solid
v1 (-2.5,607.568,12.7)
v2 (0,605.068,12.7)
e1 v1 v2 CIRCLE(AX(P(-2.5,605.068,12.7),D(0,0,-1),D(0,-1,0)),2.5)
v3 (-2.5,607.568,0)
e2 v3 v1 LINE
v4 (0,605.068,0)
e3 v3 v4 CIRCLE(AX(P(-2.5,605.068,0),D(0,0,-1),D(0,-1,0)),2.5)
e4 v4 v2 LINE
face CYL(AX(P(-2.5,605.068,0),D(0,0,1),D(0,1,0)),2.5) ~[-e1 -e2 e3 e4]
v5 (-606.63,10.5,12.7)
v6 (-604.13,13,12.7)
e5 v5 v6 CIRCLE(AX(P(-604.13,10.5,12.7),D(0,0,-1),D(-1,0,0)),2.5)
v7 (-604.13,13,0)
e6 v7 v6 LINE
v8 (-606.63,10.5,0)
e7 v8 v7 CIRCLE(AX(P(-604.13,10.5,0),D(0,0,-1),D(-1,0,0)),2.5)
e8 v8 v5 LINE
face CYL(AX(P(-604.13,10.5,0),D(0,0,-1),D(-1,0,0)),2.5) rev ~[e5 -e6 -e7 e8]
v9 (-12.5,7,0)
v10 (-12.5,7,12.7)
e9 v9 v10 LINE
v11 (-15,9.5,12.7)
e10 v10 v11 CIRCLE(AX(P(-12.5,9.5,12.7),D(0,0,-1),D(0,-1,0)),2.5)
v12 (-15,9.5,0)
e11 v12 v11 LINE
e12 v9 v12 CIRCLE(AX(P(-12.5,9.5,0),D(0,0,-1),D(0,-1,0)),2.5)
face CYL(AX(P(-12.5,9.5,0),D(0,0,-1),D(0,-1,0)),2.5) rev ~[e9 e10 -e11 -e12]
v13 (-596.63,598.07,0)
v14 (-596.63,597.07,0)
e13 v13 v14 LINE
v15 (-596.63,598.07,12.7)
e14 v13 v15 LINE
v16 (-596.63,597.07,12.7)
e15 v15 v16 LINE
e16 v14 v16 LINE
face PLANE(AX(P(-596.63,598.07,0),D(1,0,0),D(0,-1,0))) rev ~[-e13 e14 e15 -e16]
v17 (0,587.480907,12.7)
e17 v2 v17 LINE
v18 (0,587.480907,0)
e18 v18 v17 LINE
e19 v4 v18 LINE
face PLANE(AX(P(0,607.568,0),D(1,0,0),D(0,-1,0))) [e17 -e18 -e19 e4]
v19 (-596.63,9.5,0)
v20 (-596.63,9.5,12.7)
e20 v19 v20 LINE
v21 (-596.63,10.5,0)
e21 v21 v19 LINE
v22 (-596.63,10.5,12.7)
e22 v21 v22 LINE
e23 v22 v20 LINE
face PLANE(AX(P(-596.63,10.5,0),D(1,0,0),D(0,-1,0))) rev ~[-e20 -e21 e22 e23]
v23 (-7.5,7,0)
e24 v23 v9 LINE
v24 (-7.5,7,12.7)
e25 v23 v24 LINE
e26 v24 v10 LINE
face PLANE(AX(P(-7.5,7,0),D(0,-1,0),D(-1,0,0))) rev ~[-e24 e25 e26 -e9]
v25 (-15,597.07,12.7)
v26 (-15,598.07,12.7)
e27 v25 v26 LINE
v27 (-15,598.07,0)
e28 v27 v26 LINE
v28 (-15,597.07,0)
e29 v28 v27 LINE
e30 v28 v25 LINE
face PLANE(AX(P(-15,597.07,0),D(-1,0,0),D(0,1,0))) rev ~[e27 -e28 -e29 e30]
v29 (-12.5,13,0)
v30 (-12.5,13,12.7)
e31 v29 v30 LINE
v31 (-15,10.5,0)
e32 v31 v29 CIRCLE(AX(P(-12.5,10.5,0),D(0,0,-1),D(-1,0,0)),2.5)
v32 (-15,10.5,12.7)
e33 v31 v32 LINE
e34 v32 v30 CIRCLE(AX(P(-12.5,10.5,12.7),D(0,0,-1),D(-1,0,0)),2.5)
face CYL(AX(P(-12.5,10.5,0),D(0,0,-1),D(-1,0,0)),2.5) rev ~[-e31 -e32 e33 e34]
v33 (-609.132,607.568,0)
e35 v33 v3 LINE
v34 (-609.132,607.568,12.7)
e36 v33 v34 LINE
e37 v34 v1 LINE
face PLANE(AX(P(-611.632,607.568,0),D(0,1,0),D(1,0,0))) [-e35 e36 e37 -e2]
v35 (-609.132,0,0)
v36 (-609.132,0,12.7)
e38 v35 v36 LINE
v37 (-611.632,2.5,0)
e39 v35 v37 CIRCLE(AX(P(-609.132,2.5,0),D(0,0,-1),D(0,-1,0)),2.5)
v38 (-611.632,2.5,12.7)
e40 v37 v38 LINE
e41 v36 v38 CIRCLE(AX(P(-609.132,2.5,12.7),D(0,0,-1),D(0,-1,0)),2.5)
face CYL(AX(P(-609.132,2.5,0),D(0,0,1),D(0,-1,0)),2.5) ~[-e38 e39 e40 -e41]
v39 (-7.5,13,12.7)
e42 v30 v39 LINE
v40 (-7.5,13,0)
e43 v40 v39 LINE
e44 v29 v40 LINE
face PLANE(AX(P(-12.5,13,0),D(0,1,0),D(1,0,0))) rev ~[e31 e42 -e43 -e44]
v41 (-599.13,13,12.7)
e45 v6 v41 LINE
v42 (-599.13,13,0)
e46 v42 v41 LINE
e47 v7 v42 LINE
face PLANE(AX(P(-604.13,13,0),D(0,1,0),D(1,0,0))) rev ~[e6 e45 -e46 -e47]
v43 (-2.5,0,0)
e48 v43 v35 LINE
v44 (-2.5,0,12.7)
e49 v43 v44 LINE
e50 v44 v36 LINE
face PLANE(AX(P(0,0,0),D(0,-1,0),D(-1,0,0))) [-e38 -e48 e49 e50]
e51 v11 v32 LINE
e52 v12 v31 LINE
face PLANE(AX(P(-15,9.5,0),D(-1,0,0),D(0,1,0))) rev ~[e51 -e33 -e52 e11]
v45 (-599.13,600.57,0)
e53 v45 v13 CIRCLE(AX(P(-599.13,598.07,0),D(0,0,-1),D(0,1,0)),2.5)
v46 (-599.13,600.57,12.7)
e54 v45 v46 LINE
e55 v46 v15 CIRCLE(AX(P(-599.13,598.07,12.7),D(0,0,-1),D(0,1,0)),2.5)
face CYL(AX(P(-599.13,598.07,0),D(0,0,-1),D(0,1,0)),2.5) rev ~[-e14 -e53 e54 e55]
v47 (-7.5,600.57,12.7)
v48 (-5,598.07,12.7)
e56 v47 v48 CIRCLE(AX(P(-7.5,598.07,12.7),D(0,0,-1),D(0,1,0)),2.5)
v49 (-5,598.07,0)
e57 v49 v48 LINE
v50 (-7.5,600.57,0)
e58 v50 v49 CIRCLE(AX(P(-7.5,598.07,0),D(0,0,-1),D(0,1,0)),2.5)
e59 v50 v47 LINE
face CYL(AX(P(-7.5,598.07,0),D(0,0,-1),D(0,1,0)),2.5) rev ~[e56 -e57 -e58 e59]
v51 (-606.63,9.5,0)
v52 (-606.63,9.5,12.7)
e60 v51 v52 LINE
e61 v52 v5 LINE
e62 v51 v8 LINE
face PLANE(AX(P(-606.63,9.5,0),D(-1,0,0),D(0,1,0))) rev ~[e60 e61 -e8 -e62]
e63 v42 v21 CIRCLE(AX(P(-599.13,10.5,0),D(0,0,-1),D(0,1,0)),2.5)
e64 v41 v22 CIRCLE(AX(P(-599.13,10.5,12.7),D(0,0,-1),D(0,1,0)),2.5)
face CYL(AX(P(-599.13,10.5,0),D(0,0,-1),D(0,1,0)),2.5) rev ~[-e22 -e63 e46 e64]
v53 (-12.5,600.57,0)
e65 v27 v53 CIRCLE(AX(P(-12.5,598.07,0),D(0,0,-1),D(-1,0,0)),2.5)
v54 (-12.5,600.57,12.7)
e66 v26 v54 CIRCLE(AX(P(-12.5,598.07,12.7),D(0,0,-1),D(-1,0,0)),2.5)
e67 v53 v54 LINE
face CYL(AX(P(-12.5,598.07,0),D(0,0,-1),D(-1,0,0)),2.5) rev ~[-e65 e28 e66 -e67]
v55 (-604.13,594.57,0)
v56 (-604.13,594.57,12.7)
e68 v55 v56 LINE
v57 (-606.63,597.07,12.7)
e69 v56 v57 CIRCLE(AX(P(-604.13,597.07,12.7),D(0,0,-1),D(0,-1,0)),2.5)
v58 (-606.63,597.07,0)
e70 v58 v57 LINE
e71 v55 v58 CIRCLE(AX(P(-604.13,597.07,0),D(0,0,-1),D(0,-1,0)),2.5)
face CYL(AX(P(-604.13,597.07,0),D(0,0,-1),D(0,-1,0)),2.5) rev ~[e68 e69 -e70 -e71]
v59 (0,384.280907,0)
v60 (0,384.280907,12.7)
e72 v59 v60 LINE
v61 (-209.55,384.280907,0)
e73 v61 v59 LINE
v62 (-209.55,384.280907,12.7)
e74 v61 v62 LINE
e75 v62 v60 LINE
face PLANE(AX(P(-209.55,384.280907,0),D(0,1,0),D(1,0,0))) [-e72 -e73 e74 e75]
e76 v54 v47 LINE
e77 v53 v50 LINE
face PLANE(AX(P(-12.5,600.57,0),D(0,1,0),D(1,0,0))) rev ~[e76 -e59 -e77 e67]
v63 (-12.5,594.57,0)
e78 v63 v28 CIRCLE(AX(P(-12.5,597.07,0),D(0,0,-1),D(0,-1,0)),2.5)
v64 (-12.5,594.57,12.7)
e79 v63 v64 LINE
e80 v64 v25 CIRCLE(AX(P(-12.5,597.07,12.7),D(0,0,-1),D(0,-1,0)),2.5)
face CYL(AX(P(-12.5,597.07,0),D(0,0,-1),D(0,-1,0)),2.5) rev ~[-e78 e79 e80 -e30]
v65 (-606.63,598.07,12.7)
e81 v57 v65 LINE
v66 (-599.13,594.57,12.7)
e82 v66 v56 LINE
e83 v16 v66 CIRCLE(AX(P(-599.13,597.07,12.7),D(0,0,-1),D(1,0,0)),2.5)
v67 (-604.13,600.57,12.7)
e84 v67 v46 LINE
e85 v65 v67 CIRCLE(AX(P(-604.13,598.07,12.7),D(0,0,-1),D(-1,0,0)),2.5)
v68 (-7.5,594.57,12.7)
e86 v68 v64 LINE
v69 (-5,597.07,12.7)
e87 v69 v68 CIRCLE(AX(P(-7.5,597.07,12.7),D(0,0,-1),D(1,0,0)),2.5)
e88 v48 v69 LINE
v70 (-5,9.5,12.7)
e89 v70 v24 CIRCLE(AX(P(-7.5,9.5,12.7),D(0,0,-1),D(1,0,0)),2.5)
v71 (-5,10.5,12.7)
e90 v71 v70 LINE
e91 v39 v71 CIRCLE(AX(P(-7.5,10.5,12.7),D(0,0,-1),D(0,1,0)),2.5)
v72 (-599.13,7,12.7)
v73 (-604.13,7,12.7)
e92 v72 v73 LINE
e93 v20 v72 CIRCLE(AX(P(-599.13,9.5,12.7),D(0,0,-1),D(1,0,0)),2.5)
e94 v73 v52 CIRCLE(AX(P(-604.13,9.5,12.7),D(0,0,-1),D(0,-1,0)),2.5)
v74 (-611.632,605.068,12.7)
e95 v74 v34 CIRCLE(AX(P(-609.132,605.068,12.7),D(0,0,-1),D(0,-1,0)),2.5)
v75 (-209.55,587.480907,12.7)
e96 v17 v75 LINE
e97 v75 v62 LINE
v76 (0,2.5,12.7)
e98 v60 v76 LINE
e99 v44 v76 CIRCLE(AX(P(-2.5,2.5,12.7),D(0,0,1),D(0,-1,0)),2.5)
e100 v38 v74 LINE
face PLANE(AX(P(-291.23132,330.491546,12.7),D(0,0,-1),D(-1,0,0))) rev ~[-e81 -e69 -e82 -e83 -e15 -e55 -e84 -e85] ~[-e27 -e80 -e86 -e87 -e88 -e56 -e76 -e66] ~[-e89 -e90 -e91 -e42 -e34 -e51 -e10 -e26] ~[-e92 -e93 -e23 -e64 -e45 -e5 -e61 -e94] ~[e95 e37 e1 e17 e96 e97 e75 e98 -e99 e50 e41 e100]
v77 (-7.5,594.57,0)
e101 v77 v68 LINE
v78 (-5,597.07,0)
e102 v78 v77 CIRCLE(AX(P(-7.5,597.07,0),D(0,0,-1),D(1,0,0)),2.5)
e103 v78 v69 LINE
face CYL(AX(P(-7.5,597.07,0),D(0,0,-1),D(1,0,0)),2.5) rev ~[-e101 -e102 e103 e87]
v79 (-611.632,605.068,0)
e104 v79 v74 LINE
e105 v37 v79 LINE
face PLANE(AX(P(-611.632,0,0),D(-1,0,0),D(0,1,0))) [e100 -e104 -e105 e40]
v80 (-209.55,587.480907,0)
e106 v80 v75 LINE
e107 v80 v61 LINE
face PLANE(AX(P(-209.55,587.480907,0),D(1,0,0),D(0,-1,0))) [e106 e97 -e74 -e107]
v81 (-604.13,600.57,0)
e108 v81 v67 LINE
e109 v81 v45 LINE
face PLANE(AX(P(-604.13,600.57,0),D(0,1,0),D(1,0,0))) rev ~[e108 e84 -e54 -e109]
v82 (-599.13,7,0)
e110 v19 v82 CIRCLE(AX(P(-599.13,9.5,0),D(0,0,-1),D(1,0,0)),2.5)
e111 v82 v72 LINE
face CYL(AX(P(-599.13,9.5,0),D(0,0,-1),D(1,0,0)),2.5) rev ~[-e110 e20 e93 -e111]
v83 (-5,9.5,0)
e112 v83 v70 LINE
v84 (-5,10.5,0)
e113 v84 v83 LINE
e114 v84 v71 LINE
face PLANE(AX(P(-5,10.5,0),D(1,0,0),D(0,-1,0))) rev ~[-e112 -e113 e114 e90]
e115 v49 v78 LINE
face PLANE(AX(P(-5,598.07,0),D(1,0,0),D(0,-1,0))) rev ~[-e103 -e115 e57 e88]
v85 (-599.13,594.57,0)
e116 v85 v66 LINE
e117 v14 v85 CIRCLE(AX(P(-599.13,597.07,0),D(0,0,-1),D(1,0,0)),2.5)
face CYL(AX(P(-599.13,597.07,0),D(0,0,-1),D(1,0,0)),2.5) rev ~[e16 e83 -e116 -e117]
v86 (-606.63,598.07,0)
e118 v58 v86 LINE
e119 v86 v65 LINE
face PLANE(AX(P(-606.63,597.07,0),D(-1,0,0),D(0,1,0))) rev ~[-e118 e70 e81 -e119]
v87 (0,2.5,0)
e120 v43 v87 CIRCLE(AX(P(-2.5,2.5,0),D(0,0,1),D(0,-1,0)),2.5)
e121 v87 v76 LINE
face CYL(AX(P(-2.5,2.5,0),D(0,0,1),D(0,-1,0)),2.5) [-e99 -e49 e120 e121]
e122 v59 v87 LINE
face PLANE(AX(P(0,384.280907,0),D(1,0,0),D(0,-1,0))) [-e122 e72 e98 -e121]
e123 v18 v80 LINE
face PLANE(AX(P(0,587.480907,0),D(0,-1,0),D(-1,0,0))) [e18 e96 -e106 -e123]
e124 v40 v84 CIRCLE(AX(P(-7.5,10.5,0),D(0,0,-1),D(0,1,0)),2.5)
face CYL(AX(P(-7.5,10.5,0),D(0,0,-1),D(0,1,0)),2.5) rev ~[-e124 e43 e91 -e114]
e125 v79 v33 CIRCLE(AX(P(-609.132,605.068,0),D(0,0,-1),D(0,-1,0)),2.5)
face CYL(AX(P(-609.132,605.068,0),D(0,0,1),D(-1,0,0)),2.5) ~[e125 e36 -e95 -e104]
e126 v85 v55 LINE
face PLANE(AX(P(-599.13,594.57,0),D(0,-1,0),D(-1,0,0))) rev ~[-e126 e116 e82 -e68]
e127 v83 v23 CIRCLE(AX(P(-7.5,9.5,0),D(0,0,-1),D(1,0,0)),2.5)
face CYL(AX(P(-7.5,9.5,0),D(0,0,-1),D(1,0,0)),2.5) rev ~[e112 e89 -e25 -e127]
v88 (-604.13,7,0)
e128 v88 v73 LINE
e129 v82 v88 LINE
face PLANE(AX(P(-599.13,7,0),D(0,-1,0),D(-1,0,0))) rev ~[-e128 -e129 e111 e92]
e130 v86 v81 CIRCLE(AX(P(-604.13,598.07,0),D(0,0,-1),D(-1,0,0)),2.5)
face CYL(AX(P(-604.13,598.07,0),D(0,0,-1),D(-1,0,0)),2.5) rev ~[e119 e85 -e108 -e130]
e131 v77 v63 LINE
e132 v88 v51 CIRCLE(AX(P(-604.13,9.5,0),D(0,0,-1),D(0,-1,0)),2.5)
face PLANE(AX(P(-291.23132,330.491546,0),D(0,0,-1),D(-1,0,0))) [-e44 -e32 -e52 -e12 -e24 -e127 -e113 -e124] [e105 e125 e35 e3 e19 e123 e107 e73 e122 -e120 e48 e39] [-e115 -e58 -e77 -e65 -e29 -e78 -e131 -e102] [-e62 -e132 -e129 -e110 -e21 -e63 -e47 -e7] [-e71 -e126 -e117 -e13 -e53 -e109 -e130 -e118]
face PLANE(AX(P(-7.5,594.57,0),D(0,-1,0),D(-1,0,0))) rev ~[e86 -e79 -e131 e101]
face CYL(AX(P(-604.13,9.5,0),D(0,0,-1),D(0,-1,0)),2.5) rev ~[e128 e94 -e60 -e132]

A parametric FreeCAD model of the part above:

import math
import FreeCAD as App
import Part
import Sketcher

V = App.Vector
Q = App.Units.Quantity


def edges_at(feature, points):
    """Names of the edges that pass closest to the given points."""
    edges = feature.Shape.Edges
    near = lambda p: min(range(len(edges)), key=lambda i: edges[i].distToShape(Part.Vertex(*p))[0])
    return sorted({f"Edge{near(p) + 1}" for p in points})


def add_polygon(sketch, points):
    """Adds a closed chain of lines whose ends are joined by coincident constraints."""
    first, n = sketch.GeometryCount, len(points)
    for a, b in zip(points, points[1:] + points[:1]):
        sketch.addGeometry(Part.LineSegment(App.Vector(*a, 0), App.Vector(*b, 0)), False)
    for i in range(n):
        sketch.addConstraint(Sketcher.Constraint("Coincident", first + i, 2, first + (i + 1) % n, 1))

doc = App.newDocument("Part")
params = doc.addObject("Spreadsheet::Sheet", "Params")
for row, (alias, value) in enumerate([
    ("sketch1_height", "8 in"),
    ("sketch1_width", "24.08 in"),
    ("sketch1_width2", "8.25 in"),
    ("sketch1_height2", "23.92 in"),
    ("pad1_length", "0.5 in"),
    ("fillet_radius", "2.5 mm"),
], start=1):
    params.set(f"A{row}", alias)
    params.set(f"B{row}", "=" + value)
    params.setAlias(f"B{row}", alias)

body = doc.addObject("PartDesign::Body", "Body")

# Sketch on XY plane
sketch1 = doc.addObject("Sketcher::SketchObject", "Sketch")
body.addObject(sketch1)
sketch1.AttachmentSupport = (doc.XY_Plane, [""])
sketch1.MapMode = "FlatFace"
add_polygon(sketch1, [(-611.6, 0), (0, 0), (0, 384.3), (-209.6, 384.3), (-209.6, 587.5), (0, 587.5), (0, 607.6), (-611.6, 607.6)])  # lines 0-7
sketch1.addGeometry(Part.LineSegment(V(-5, 10.5, 0), V(-5, 9.5, 0)), False)  # 8
sketch1.addGeometry(Part.ArcOfCircle(Part.Circle(V(-7.5, 9.5, 0), V(0, 0, 1), 2.5), math.radians(-90), math.radians(0)), False)  # 9
sketch1.addGeometry(Part.LineSegment(V(-7.5, 7, 0), V(-12.5, 7, 0)), False)  # 10
sketch1.addGeometry(Part.ArcOfCircle(Part.Circle(V(-12.5, 9.5, 0), V(0, 0, 1), 2.5), math.radians(180), math.radians(270)), False)  # 11
sketch1.addGeometry(Part.LineSegment(V(-15, 9.5, 0), V(-15, 10.5, 0)), False)  # 12
sketch1.addGeometry(Part.ArcOfCircle(Part.Circle(V(-12.5, 10.5, 0), V(0, 0, 1), 2.5), math.radians(90), math.radians(180)), False)  # 13
sketch1.addGeometry(Part.LineSegment(V(-12.5, 13, 0), V(-7.5, 13, 0)), False)  # 14
sketch1.addGeometry(Part.ArcOfCircle(Part.Circle(V(-7.5, 10.5, 0), V(0, 0, 1), 2.5), math.radians(0), math.radians(90)), False)  # 15
sketch1.addGeometry(Part.LineSegment(V(-596.6, 10.5, 0), V(-596.6, 9.5, 0)), False)  # 16
sketch1.addGeometry(Part.ArcOfCircle(Part.Circle(V(-599.1, 9.5, 0), V(0, 0, 1), 2.5), math.radians(-90), math.radians(0)), False)  # 17
sketch1.addGeometry(Part.LineSegment(V(-599.1, 7, 0), V(-604.1, 7, 0)), False)  # 18
sketch1.addGeometry(Part.ArcOfCircle(Part.Circle(V(-604.1, 9.5, 0), V(0, 0, 1), 2.5), math.radians(180), math.radians(270)), False)  # 19
sketch1.addGeometry(Part.LineSegment(V(-606.6, 9.5, 0), V(-606.6, 10.5, 0)), False)  # 20
sketch1.addGeometry(Part.ArcOfCircle(Part.Circle(V(-604.1, 10.5, 0), V(0, 0, 1), 2.5), math.radians(90), math.radians(180)), False)  # 21
sketch1.addGeometry(Part.LineSegment(V(-604.1, 13, 0), V(-599.1, 13, 0)), False)  # 22
sketch1.addGeometry(Part.ArcOfCircle(Part.Circle(V(-599.1, 10.5, 0), V(0, 0, 1), 2.5), math.radians(0), math.radians(90)), False)  # 23
sketch1.addGeometry(Part.LineSegment(V(-5, 598.1, 0), V(-5, 597.1, 0)), False)  # 24
sketch1.addGeometry(Part.ArcOfCircle(Part.Circle(V(-7.5, 597.1, 0), V(0, 0, 1), 2.5), math.radians(-90), math.radians(0)), False)  # 25
sketch1.addGeometry(Part.LineSegment(V(-7.5, 594.6, 0), V(-12.5, 594.6, 0)), False)  # 26
sketch1.addGeometry(Part.ArcOfCircle(Part.Circle(V(-12.5, 597.1, 0), V(0, 0, 1), 2.5), math.radians(180), math.radians(270)), False)  # 27
sketch1.addGeometry(Part.LineSegment(V(-15, 597.1, 0), V(-15, 598.1, 0)), False)  # 28
sketch1.addGeometry(Part.ArcOfCircle(Part.Circle(V(-12.5, 598.1, 0), V(0, 0, 1), 2.5), math.radians(90), math.radians(180)), False)  # 29
sketch1.addGeometry(Part.LineSegment(V(-12.5, 600.6, 0), V(-7.5, 600.6, 0)), False)  # 30
sketch1.addGeometry(Part.ArcOfCircle(Part.Circle(V(-7.5, 598.1, 0), V(0, 0, 1), 2.5), math.radians(0), math.radians(90)), False)  # 31
sketch1.addGeometry(Part.LineSegment(V(-596.6, 598.1, 0), V(-596.6, 597.1, 0)), False)  # 32
sketch1.addGeometry(Part.ArcOfCircle(Part.Circle(V(-599.1, 597.1, 0), V(0, 0, 1), 2.5), math.radians(-90), math.radians(0)), False)  # 33
sketch1.addGeometry(Part.LineSegment(V(-599.1, 594.6, 0), V(-604.1, 594.6, 0)), False)  # 34
sketch1.addGeometry(Part.ArcOfCircle(Part.Circle(V(-604.1, 597.1, 0), V(0, 0, 1), 2.5), math.radians(180), math.radians(270)), False)  # 35
sketch1.addGeometry(Part.LineSegment(V(-606.6, 597.1, 0), V(-606.6, 598.1, 0)), False)  # 36
sketch1.addGeometry(Part.ArcOfCircle(Part.Circle(V(-604.1, 598.1, 0), V(0, 0, 1), 2.5), math.radians(90), math.radians(180)), False)  # 37
sketch1.addGeometry(Part.LineSegment(V(-604.1, 600.6, 0), V(-599.1, 600.6, 0)), False)  # 38
sketch1.addGeometry(Part.ArcOfCircle(Part.Circle(V(-599.1, 598.1, 0), V(0, 0, 1), 2.5), math.radians(0), math.radians(90)), False)  # 39
sketch1.addConstraint(Sketcher.Constraint("Tangent", 8, 2, 9, 2))
sketch1.addConstraint(Sketcher.Constraint("Tangent", 9, 1, 10, 1))
sketch1.addConstraint(Sketcher.Constraint("Tangent", 10, 2, 11, 2))
sketch1.addConstraint(Sketcher.Constraint("Tangent", 11, 1, 12, 1))
sketch1.addConstraint(Sketcher.Constraint("Tangent", 12, 2, 13, 2))
sketch1.addConstraint(Sketcher.Constraint("Tangent", 13, 1, 14, 1))
sketch1.addConstraint(Sketcher.Constraint("Tangent", 14, 2, 15, 2))
sketch1.addConstraint(Sketcher.Constraint("Tangent", 15, 1, 8, 1))
sketch1.addConstraint(Sketcher.Constraint("Tangent", 16, 2, 17, 2))
sketch1.addConstraint(Sketcher.Constraint("Tangent", 17, 1, 18, 1))
sketch1.addConstraint(Sketcher.Constraint("Tangent", 18, 2, 19, 2))
sketch1.addConstraint(Sketcher.Constraint("Tangent", 19, 1, 20, 1))
sketch1.addConstraint(Sketcher.Constraint("Tangent", 20, 2, 21, 2))
sketch1.addConstraint(Sketcher.Constraint("Tangent", 21, 1, 22, 1))
sketch1.addConstraint(Sketcher.Constraint("Tangent", 22, 2, 23, 2))
sketch1.addConstraint(Sketcher.Constraint("Tangent", 23, 1, 16, 1))
sketch1.addConstraint(Sketcher.Constraint("Tangent", 24, 2, 25, 2))
sketch1.addConstraint(Sketcher.Constraint("Tangent", 25, 1, 26, 1))
sketch1.addConstraint(Sketcher.Constraint("Tangent", 26, 2, 27, 2))
sketch1.addConstraint(Sketcher.Constraint("Tangent", 27, 1, 28, 1))
sketch1.addConstraint(Sketcher.Constraint("Tangent", 28, 2, 29, 2))
sketch1.addConstraint(Sketcher.Constraint("Tangent", 29, 1, 30, 1))
sketch1.addConstraint(Sketcher.Constraint("Tangent", 30, 2, 31, 2))
sketch1.addConstraint(Sketcher.Constraint("Tangent", 31, 1, 24, 1))
sketch1.addConstraint(Sketcher.Constraint("Tangent", 32, 2, 33, 2))
sketch1.addConstraint(Sketcher.Constraint("Tangent", 33, 1, 34, 1))
sketch1.addConstraint(Sketcher.Constraint("Tangent", 34, 2, 35, 2))
sketch1.addConstraint(Sketcher.Constraint("Tangent", 35, 1, 36, 1))
sketch1.addConstraint(Sketcher.Constraint("Tangent", 36, 2, 37, 2))
sketch1.addConstraint(Sketcher.Constraint("Tangent", 37, 1, 38, 1))
sketch1.addConstraint(Sketcher.Constraint("Tangent", 38, 2, 39, 2))
sketch1.addConstraint(Sketcher.Constraint("Tangent", 39, 1, 32, 1))
sketch1.addConstraint(Sketcher.Constraint("Horizontal", 0))
sketch1.addConstraint(Sketcher.Constraint("Vertical", 1))
sketch1.addConstraint(Sketcher.Constraint("Horizontal", 2))
sketch1.addConstraint(Sketcher.Constraint("Vertical", 3))
sketch1.addConstraint(Sketcher.Constraint("Horizontal", 4))
sketch1.addConstraint(Sketcher.Constraint("Vertical", 5))
sketch1.addConstraint(Sketcher.Constraint("Horizontal", 6))
sketch1.addConstraint(Sketcher.Constraint("Vertical", 7))
sketch1.addConstraint(Sketcher.Constraint("Vertical", 8))
sketch1.addConstraint(Sketcher.Constraint("Horizontal", 10))
sketch1.addConstraint(Sketcher.Constraint("Vertical", 12))
sketch1.addConstraint(Sketcher.Constraint("Horizontal", 14))
sketch1.addConstraint(Sketcher.Constraint("Vertical", 16))
sketch1.addConstraint(Sketcher.Constraint("Horizontal", 18))
sketch1.addConstraint(Sketcher.Constraint("Vertical", 20))
sketch1.addConstraint(Sketcher.Constraint("Horizontal", 22))
sketch1.addConstraint(Sketcher.Constraint("Vertical", 24))
sketch1.addConstraint(Sketcher.Constraint("Horizontal", 26))
sketch1.addConstraint(Sketcher.Constraint("Vertical", 28))
sketch1.addConstraint(Sketcher.Constraint("Horizontal", 30))
sketch1.addConstraint(Sketcher.Constraint("Vertical", 32))
sketch1.addConstraint(Sketcher.Constraint("Horizontal", 34))
sketch1.addConstraint(Sketcher.Constraint("Vertical", 36))
sketch1.addConstraint(Sketcher.Constraint("Horizontal", 38))
sketch1.addConstraint(Sketcher.Constraint("Coincident", 0, 2, -1, 1))
sketch1.addConstraint(Sketcher.Constraint("Equal", 9, 11))
sketch1.addConstraint(Sketcher.Constraint("Equal", 11, 13))
sketch1.addConstraint(Sketcher.Constraint("Equal", 13, 15))
sketch1.addConstraint(Sketcher.Constraint("Equal", 15, 17))
sketch1.addConstraint(Sketcher.Constraint("Equal", 17, 19))
sketch1.addConstraint(Sketcher.Constraint("Equal", 19, 21))
sketch1.addConstraint(Sketcher.Constraint("Equal", 21, 23))
sketch1.addConstraint(Sketcher.Constraint("Equal", 23, 25))
sketch1.addConstraint(Sketcher.Constraint("Equal", 25, 27))
sketch1.addConstraint(Sketcher.Constraint("Equal", 27, 29))
sketch1.addConstraint(Sketcher.Constraint("Equal", 29, 31))
sketch1.addConstraint(Sketcher.Constraint("Equal", 31, 33))
sketch1.addConstraint(Sketcher.Constraint("Equal", 33, 35))
sketch1.addConstraint(Sketcher.Constraint("Equal", 35, 37))
sketch1.addConstraint(Sketcher.Constraint("Equal", 37, 39))
sketch1.addConstraint(Sketcher.Constraint("PointOnObject", 4, 2, -2))
sketch1.addConstraint(Sketcher.Constraint("Horizontal", 11, 3, 17, 3))
sketch1.addConstraint(Sketcher.Constraint("Horizontal", 15, 3, 21, 3))
sketch1.addConstraint(Sketcher.Constraint("Horizontal", 27, 3, 33, 3))
sketch1.addConstraint(Sketcher.Constraint("Horizontal", 31, 3, 37, 3))
sketch1.addConstraint(Sketcher.Constraint("Vertical", 15, 3, 25, 3))
sketch1.addConstraint(Sketcher.Constraint("Vertical", 13, 3, 27, 3))
sketch1.addConstraint(Sketcher.Constraint("Vertical", 23, 3, 33, 3))
sketch1.addConstraint(Sketcher.Constraint("Vertical", 21, 3, 35, 3))
sketch1.addConstraint(Sketcher.Constraint("Equal", 14, 18))
sketch1.addConstraint(Sketcher.Constraint("Equal", 20, 24))
sketch1.addConstraint(Sketcher.Constraint("DistanceY", 3, 1, 3, 2, Q("8 in")))
sketch1.addConstraint(Sketcher.Constraint("DistanceX", 0, 1, 0, 2, Q("24.08 in")))
sketch1.addConstraint(Sketcher.Constraint("DistanceX", 2, 2, 2, 1, Q("8.25 in")))
sketch1.addConstraint(Sketcher.Constraint("DistanceY", 7, 2, 7, 1, Q("23.92 in")))
sketch1.addConstraint(Sketcher.Constraint("Radius", 9, 2.5))
sketch1.addConstraint(Sketcher.Constraint("DistanceX", 10, 2, 10, 1, 5.0))
sketch1.addConstraint(Sketcher.Constraint("DistanceY", 8, 2, 8, 1, 1.0))
sketch1.addConstraint(Sketcher.Constraint("DistanceX", 9, 3, -1, 1, 7.5))
sketch1.addConstraint(Sketcher.Constraint("DistanceY", -1, 1, 9, 3, 9.5))
sketch1.addConstraint(Sketcher.Constraint("DistanceX", 17, 3, -1, 1, 599.13))
sketch1.addConstraint(Sketcher.Constraint("DistanceY", -1, 1, 25, 3, 597.07))
sketch1.addConstraint(Sketcher.Constraint("DistanceY", 1, 1, 1, 2, 384.280907))
sketch1.setExpression("Constraints[91]", "Params.sketch1_height")
sketch1.setExpression("Constraints[92]", "Params.sketch1_width")
sketch1.setExpression("Constraints[93]", "Params.sketch1_width2")
sketch1.setExpression("Constraints[94]", "Params.sketch1_height2")
pad1 = doc.addObject("PartDesign::Pad", "Pad")
body.addObject(pad1)
pad1.Profile = sketch1
pad1.setExpression("Length", "Params.pad1_length")
doc.recompute()

fillet = doc.addObject("PartDesign::Fillet", "Fillet")
body.addObject(fillet)
fillet.Base = (pad1, edges_at(pad1, [
    (0, 0, 6.35),
    (-611.632, 0, 6.35),
    (-611.632, 607.568, 6.35),
    (0, 607.568, 6.35),
]))
fillet.setExpression("Radius", "Params.fillet_radius")

doc.recompute()
